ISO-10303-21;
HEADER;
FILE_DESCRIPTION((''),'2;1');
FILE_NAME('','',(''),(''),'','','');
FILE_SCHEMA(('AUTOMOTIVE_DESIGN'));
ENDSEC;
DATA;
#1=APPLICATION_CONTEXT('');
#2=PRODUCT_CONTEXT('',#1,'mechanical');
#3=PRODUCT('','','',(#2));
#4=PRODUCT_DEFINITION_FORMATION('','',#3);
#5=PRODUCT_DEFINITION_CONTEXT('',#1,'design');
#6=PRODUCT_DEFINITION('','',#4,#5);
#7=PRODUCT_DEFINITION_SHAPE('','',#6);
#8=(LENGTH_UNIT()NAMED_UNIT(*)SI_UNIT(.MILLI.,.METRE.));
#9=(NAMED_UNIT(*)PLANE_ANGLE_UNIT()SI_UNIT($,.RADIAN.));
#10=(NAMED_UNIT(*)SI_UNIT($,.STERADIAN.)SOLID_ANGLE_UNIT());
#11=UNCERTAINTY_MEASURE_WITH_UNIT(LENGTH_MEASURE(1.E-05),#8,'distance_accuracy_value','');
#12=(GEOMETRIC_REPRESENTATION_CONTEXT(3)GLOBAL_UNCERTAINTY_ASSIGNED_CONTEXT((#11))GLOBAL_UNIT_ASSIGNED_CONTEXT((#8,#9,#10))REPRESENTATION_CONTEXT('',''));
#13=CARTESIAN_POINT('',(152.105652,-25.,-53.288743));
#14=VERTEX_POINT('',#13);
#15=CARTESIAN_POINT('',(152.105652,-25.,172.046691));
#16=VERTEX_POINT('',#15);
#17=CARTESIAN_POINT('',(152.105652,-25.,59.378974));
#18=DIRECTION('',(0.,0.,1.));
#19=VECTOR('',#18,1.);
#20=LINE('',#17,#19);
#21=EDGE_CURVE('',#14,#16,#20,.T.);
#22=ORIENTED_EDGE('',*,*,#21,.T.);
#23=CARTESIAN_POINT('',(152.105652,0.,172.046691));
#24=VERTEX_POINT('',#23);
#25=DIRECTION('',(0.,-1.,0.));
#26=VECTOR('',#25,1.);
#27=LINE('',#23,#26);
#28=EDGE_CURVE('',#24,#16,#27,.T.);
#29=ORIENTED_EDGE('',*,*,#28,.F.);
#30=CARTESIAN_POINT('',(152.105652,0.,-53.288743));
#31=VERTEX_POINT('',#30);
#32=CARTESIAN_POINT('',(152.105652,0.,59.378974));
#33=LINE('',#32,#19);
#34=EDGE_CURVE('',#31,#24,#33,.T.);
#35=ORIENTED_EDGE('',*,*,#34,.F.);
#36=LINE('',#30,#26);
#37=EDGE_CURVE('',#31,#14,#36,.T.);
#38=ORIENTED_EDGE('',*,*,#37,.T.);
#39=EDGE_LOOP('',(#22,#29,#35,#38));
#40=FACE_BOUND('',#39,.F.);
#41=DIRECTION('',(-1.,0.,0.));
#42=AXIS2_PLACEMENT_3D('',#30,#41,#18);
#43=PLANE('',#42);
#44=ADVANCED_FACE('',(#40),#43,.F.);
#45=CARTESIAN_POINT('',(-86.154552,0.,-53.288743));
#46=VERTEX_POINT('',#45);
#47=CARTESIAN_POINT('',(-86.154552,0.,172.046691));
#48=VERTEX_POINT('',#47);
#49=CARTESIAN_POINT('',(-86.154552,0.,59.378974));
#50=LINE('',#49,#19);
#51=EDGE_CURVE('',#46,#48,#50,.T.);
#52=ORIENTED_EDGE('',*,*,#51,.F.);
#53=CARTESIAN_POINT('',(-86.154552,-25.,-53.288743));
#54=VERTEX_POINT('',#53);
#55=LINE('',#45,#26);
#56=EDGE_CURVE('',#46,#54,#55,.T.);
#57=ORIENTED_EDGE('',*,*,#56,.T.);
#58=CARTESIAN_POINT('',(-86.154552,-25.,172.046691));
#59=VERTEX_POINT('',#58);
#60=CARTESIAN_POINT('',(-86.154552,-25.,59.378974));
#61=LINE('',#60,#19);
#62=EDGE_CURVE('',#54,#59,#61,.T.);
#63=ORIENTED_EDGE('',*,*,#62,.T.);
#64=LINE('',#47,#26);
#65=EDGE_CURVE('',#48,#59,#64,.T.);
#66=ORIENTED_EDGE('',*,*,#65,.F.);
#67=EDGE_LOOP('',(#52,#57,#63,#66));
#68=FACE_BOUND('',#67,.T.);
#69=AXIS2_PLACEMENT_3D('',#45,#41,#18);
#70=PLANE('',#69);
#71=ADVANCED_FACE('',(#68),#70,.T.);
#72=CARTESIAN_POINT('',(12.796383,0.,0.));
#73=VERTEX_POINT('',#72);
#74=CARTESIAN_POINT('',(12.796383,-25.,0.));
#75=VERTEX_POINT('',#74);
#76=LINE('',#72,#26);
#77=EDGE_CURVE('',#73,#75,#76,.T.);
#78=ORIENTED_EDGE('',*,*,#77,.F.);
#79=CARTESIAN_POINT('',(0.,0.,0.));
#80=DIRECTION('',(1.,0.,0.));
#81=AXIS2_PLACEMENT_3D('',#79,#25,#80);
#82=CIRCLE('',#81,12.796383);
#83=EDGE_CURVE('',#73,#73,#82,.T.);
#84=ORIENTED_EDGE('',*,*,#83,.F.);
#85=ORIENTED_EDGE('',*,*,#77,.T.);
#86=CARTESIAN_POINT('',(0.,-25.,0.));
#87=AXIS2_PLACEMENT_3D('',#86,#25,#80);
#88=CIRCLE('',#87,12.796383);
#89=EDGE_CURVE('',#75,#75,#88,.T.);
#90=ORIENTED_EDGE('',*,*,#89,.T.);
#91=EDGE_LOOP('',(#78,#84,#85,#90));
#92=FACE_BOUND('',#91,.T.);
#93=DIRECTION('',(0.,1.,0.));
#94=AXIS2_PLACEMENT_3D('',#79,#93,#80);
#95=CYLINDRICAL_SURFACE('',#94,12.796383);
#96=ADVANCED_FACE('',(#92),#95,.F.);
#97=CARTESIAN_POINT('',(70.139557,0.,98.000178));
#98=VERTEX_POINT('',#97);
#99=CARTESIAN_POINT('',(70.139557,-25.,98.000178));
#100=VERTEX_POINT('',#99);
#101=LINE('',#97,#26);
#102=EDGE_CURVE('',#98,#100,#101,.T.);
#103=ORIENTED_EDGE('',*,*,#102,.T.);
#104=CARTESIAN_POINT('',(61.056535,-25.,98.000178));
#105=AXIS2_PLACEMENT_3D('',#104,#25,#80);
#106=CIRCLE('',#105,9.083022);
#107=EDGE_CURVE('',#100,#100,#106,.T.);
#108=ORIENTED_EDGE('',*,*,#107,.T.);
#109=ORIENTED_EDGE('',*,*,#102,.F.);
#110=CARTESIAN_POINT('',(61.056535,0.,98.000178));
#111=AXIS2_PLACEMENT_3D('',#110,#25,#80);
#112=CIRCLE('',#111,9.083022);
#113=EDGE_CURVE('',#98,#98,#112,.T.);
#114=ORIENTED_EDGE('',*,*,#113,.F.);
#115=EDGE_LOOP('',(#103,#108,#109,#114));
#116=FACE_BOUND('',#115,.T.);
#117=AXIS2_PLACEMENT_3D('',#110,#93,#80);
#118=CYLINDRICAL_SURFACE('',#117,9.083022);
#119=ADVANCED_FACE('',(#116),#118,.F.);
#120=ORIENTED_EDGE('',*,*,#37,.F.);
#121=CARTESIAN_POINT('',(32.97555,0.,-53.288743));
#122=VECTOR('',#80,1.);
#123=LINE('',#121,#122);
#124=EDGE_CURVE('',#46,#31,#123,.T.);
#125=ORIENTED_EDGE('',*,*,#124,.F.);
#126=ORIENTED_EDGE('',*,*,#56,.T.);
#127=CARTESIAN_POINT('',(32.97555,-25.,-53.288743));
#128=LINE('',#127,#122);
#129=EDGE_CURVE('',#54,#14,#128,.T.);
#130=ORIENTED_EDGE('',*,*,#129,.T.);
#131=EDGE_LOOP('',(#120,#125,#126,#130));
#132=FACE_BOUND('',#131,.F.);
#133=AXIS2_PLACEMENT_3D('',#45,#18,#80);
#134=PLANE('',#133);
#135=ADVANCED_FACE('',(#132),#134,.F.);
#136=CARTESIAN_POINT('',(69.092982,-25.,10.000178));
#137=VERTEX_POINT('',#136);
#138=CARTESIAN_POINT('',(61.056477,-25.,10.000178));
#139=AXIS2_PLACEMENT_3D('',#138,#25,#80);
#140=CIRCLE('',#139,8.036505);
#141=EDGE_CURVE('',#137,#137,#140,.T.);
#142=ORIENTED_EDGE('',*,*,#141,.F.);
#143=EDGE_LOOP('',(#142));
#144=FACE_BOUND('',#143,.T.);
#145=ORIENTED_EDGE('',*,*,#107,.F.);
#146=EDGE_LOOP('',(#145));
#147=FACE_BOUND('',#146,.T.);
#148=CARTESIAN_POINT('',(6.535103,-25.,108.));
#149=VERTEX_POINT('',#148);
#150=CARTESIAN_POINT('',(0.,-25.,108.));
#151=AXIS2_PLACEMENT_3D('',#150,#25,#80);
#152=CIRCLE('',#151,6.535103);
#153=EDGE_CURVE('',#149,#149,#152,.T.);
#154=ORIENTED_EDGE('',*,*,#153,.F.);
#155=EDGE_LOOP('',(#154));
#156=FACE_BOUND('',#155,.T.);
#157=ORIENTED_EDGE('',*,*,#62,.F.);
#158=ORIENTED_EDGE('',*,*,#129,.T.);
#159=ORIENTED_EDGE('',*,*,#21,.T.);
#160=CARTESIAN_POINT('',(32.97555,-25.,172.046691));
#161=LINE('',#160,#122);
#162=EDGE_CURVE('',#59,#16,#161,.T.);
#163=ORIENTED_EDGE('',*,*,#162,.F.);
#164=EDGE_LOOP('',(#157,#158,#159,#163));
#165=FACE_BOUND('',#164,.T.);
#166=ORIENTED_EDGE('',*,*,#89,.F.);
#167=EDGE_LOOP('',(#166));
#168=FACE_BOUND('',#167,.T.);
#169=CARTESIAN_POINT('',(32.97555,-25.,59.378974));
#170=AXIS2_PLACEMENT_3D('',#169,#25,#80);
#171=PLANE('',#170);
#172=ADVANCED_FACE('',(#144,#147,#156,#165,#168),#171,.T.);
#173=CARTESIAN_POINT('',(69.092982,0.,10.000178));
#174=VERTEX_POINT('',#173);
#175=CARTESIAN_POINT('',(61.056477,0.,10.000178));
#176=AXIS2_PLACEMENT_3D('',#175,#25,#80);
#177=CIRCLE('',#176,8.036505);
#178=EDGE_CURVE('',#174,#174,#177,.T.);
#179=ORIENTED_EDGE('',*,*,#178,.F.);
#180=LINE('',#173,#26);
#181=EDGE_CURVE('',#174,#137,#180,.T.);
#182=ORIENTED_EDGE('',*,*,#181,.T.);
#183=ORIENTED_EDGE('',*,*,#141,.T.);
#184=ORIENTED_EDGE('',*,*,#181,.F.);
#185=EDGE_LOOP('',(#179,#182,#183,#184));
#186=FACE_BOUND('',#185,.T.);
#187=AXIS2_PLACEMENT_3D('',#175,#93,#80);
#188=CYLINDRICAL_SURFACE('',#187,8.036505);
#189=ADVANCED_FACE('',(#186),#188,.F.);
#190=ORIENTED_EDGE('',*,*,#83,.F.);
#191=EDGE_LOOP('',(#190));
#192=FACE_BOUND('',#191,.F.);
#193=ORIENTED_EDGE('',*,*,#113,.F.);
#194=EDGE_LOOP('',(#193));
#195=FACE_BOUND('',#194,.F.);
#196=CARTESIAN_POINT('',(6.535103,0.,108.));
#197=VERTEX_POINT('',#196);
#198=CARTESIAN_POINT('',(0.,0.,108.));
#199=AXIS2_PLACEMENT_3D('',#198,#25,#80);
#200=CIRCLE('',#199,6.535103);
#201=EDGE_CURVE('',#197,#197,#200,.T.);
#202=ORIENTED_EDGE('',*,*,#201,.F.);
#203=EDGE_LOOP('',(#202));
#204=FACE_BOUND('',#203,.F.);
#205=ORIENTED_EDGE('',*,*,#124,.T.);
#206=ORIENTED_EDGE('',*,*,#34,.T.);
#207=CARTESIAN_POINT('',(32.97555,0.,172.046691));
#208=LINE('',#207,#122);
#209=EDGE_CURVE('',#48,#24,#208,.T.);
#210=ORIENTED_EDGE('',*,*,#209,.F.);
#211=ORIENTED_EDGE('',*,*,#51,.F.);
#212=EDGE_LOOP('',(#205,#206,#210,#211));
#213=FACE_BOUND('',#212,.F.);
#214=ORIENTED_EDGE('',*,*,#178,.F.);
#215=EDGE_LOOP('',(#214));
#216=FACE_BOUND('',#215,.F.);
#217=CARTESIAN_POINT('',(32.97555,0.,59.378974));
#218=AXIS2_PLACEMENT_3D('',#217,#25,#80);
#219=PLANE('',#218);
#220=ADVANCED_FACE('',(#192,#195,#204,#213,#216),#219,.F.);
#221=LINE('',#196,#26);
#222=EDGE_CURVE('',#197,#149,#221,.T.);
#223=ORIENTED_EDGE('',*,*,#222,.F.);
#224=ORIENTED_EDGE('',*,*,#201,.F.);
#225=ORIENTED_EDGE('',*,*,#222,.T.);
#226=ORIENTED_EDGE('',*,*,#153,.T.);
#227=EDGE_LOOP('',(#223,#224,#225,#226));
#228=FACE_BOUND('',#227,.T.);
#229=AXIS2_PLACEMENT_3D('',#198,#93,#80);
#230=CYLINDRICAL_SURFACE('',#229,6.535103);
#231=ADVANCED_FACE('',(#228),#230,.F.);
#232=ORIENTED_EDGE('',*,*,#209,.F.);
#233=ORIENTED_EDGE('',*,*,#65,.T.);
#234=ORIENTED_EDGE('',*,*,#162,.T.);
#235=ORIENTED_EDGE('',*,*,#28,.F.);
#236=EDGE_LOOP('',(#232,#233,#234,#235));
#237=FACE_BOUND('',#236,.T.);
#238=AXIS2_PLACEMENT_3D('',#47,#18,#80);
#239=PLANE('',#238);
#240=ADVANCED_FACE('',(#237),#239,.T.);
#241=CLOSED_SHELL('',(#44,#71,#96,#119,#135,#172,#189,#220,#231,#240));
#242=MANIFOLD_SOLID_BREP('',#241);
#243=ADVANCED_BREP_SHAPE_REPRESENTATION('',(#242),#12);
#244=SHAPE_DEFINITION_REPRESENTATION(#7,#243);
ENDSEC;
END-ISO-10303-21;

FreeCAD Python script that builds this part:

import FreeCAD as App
import Part
import Sketcher
from FreeCAD import Vector
Q = App.Units.Quantity


def add_polygon(sketch, points):
    """Adds a closed chain of lines whose ends are joined by coincident constraints."""
    first, n = sketch.GeometryCount, len(points)
    for a, b in zip(points, points[1:] + points[:1]):
        sketch.addGeometry(Part.LineSegment(App.Vector(*a, 0), App.Vector(*b, 0)), False)
    for i in range(n):
        sketch.addConstraint(Sketcher.Constraint("Coincident", first + i, 2, first + (i + 1) % n, 1))

doc = App.newDocument("Part")
body = doc.addObject("PartDesign::Body", "Body")

sketch1 = doc.addObject("Sketcher::SketchObject", "Sketch")
body.addObject(sketch1)
sketch1.AttachmentSupport = (doc.XZ_Plane, [""])
sketch1.MapMode = "FlatFace"
add_polygon(sketch1, [(-86, 172), (-86, -53), (152, -53), (152, 172)])
sketch1.addGeometry(Part.Circle(Vector(0, 0, 0), Vector(0, 0, 1), 13), False)
sketch1.addGeometry(Part.Circle(Vector(61, 10, 0), Vector(0, 0, 1), 8), False)
sketch1.addGeometry(Part.Circle(Vector(0, 108, 0), Vector(0, 0, 1), 7), False)
sketch1.addGeometry(Part.Circle(Vector(61, 98, 0), Vector(0, 0, 1), 9), False)
sketch1.addConstraint(Sketcher.Constraint("Vertical", 0))
sketch1.addConstraint(Sketcher.Constraint("Horizontal", 1))
sketch1.addConstraint(Sketcher.Constraint("Vertical", 2))
sketch1.addConstraint(Sketcher.Constraint("Horizontal", 3))
sketch1.addConstraint(Sketcher.Constraint("Coincident", 4, 3, -1, 1))
sketch1.addConstraint(Sketcher.Constraint("PointOnObject", 6, 3, -2))
sketch1.addConstraint(Sketcher.Constraint("DistanceY", -1, 1, 6, 3, Q("108 mm")))
sketch1.addConstraint(Sketcher.Constraint("DistanceY", 5, 3, 7, 3, Q("88 mm")))
sketch1.addConstraint(Sketcher.Constraint("Diameter", 5, Q("16.07301 mm")))
sketch1.addConstraint(Sketcher.Constraint("Diameter", 4, Q("25.592766 mm")))
sketch1.addConstraint(Sketcher.Constraint("Diameter", 6, Q("13.070206 mm")))
sketch1.addConstraint(Sketcher.Constraint("Diameter", 7, Q("18.166044 mm")))
sketch1.addConstraint(Sketcher.Constraint("DistanceX", 1, 1, 1, 2, Q("238.260204 mm")))
sketch1.addConstraint(Sketcher.Constraint("DistanceY", 0, 2, 0, 1, Q("225.335434 mm")))
sketch1.addConstraint(Sketcher.Constraint("DistanceY", -1, 1, 7, 3, Q("98.000178 mm")))
sketch1.addConstraint(Sketcher.Constraint("DistanceX", 0, 2, -1, 1, Q("86.154552 mm")))
sketch1.addConstraint(Sketcher.Constraint("DistanceY", -1, 1, 2, 2, Q("172.046691 mm")))
sketch1.addConstraint(Sketcher.Constraint("DistanceX", 0, 2, 5, 3, Q("147.211029 mm")))
sketch1.addConstraint(Sketcher.Constraint("DistanceX", -1, 1, 7, 3, Q("61.056535 mm")))
pad1 = doc.addObject("PartDesign::Pad", "Pad")
body.addObject(pad1)
pad1.Profile = sketch1
pad1.Length = 25

doc.recompute()
